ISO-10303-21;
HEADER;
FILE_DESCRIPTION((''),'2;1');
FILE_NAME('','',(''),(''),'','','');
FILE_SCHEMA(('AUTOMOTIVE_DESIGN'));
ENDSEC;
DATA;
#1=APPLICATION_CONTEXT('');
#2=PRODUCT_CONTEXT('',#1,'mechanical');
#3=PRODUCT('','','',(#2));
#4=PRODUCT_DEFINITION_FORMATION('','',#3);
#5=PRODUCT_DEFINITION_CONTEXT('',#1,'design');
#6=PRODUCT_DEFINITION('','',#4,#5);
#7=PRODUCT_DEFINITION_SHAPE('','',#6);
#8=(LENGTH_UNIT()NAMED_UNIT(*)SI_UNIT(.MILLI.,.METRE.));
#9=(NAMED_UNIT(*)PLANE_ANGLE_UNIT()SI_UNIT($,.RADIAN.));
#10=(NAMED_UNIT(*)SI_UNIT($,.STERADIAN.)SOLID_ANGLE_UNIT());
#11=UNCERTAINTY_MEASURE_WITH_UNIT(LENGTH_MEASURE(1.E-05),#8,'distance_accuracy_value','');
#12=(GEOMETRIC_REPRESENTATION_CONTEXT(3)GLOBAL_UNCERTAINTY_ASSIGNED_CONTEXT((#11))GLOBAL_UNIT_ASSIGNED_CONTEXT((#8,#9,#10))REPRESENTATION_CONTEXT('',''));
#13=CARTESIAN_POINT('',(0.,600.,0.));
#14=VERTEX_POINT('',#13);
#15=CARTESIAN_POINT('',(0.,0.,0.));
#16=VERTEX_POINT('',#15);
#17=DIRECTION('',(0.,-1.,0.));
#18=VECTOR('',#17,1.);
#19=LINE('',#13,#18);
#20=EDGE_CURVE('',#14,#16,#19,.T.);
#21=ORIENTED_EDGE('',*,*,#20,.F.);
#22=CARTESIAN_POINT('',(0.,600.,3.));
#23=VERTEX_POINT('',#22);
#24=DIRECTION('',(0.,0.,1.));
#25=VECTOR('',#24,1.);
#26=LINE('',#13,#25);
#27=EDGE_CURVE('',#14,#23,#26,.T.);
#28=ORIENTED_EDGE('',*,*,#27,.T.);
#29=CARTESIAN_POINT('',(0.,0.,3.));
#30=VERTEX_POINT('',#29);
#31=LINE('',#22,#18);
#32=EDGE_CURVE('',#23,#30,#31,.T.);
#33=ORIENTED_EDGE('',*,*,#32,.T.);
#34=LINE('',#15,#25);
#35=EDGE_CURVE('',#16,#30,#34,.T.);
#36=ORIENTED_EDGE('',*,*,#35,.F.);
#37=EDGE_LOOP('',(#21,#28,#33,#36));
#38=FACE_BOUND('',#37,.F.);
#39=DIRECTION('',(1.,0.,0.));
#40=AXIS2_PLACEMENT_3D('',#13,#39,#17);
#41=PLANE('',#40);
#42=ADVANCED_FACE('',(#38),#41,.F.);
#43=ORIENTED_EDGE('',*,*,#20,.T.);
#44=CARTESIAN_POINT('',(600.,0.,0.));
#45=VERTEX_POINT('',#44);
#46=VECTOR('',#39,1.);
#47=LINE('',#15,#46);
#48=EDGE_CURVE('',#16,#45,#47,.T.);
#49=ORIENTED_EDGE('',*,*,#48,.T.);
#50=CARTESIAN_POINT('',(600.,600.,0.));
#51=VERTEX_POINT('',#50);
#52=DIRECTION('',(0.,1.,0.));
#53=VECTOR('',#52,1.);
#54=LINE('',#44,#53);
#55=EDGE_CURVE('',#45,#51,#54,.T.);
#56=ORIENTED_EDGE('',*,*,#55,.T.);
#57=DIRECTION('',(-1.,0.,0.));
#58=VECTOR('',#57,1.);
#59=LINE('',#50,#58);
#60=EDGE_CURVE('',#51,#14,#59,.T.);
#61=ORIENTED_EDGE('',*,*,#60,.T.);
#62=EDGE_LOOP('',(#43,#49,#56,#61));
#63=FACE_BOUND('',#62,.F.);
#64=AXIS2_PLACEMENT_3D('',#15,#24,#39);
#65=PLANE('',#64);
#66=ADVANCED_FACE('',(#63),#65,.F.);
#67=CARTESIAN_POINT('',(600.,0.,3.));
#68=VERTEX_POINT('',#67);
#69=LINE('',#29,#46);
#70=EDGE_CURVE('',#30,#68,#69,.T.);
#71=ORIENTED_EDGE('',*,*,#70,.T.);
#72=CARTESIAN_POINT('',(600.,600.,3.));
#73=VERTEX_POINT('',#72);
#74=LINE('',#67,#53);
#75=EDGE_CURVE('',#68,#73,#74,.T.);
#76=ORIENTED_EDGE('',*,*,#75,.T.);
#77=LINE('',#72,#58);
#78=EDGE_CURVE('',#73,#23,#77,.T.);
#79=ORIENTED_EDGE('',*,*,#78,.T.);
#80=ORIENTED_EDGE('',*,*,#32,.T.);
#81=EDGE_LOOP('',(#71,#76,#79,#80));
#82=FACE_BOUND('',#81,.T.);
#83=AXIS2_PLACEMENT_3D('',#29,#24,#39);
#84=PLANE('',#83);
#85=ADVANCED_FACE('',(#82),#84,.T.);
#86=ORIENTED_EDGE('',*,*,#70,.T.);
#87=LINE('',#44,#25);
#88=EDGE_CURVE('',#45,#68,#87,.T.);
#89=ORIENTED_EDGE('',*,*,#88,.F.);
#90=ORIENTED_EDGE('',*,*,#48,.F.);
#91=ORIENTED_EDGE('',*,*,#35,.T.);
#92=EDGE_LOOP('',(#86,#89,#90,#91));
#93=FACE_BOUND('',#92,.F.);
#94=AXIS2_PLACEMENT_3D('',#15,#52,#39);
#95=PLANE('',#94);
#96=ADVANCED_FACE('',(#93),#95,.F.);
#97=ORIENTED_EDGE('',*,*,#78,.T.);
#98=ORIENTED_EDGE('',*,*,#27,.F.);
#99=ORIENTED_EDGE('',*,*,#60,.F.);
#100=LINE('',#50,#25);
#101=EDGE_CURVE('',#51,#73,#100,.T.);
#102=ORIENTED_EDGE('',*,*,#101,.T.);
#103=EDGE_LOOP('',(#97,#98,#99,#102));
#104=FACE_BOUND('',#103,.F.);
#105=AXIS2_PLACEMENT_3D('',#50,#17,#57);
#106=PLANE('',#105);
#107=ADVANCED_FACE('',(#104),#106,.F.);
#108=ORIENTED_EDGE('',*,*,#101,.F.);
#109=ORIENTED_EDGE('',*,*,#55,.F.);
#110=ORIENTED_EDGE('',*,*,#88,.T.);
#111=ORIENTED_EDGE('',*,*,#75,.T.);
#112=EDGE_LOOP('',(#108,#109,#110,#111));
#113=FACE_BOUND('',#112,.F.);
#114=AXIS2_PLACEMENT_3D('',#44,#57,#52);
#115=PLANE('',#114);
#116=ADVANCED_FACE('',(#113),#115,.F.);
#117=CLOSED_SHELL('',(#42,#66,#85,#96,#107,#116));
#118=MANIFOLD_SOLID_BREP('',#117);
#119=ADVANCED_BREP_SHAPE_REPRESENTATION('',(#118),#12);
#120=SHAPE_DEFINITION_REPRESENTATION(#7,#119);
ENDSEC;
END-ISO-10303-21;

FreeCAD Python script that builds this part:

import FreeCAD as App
import Part
import Sketcher
from FreeCAD import Vector


def add_polygon(sketch, points):
    """Adds a closed chain of lines whose ends are joined by coincident constraints."""
    first, n = sketch.GeometryCount, len(points)
    for a, b in zip(points, points[1:] + points[:1]):
        sketch.addGeometry(Part.LineSegment(App.Vector(*a, 0), App.Vector(*b, 0)), False)
    for i in range(n):
        sketch.addConstraint(Sketcher.Constraint("Coincident", first + i, 2, first + (i + 1) % n, 1))

doc = App.newDocument("Part")
params = doc.addObject("Spreadsheet::Sheet", "Params")
for row, (alias, value) in enumerate([
    ("sketch1_width", "600 mm"),
    ("pad1_length", "3 mm"),
], start=1):
    params.set(f"A{row}", alias)
    params.set(f"B{row}", "=" + value)
    params.setAlias(f"B{row}", alias)

body = doc.addObject("PartDesign::Body", "Body")

# Sketch on XY plane
sketch1 = doc.addObject("Sketcher::SketchObject", "Sketch")
body.addObject(sketch1)
sketch1.AttachmentSupport = (doc.XY_Plane, [""])
sketch1.MapMode = "FlatFace"
add_polygon(sketch1, [(0, 600), (0, 0), (600, 0), (600, 600)])  # lines 0-3
sketch1.addConstraint([
    Sketcher.Constraint("Vertical", 0),
    Sketcher.Constraint("Horizontal", 1),
    Sketcher.Constraint("Vertical", 2),
    Sketcher.Constraint("Horizontal", 3),
    Sketcher.Constraint("Coincident", 0, 2, -1, 1),
    Sketcher.Constraint("Equal", 3, 0),
    Sketcher.Constraint("DistanceX", 1, 1, 1, 2, 600.0),
])
sketch1.setExpression("Constraints[10]", "Params.sketch1_width")
pad1 = doc.addObject("PartDesign::Pad", "Pad")
body.addObject(pad1)
pad1.Profile = sketch1
pad1.setExpression("Length", "Params.pad1_length")

doc.recompute()
